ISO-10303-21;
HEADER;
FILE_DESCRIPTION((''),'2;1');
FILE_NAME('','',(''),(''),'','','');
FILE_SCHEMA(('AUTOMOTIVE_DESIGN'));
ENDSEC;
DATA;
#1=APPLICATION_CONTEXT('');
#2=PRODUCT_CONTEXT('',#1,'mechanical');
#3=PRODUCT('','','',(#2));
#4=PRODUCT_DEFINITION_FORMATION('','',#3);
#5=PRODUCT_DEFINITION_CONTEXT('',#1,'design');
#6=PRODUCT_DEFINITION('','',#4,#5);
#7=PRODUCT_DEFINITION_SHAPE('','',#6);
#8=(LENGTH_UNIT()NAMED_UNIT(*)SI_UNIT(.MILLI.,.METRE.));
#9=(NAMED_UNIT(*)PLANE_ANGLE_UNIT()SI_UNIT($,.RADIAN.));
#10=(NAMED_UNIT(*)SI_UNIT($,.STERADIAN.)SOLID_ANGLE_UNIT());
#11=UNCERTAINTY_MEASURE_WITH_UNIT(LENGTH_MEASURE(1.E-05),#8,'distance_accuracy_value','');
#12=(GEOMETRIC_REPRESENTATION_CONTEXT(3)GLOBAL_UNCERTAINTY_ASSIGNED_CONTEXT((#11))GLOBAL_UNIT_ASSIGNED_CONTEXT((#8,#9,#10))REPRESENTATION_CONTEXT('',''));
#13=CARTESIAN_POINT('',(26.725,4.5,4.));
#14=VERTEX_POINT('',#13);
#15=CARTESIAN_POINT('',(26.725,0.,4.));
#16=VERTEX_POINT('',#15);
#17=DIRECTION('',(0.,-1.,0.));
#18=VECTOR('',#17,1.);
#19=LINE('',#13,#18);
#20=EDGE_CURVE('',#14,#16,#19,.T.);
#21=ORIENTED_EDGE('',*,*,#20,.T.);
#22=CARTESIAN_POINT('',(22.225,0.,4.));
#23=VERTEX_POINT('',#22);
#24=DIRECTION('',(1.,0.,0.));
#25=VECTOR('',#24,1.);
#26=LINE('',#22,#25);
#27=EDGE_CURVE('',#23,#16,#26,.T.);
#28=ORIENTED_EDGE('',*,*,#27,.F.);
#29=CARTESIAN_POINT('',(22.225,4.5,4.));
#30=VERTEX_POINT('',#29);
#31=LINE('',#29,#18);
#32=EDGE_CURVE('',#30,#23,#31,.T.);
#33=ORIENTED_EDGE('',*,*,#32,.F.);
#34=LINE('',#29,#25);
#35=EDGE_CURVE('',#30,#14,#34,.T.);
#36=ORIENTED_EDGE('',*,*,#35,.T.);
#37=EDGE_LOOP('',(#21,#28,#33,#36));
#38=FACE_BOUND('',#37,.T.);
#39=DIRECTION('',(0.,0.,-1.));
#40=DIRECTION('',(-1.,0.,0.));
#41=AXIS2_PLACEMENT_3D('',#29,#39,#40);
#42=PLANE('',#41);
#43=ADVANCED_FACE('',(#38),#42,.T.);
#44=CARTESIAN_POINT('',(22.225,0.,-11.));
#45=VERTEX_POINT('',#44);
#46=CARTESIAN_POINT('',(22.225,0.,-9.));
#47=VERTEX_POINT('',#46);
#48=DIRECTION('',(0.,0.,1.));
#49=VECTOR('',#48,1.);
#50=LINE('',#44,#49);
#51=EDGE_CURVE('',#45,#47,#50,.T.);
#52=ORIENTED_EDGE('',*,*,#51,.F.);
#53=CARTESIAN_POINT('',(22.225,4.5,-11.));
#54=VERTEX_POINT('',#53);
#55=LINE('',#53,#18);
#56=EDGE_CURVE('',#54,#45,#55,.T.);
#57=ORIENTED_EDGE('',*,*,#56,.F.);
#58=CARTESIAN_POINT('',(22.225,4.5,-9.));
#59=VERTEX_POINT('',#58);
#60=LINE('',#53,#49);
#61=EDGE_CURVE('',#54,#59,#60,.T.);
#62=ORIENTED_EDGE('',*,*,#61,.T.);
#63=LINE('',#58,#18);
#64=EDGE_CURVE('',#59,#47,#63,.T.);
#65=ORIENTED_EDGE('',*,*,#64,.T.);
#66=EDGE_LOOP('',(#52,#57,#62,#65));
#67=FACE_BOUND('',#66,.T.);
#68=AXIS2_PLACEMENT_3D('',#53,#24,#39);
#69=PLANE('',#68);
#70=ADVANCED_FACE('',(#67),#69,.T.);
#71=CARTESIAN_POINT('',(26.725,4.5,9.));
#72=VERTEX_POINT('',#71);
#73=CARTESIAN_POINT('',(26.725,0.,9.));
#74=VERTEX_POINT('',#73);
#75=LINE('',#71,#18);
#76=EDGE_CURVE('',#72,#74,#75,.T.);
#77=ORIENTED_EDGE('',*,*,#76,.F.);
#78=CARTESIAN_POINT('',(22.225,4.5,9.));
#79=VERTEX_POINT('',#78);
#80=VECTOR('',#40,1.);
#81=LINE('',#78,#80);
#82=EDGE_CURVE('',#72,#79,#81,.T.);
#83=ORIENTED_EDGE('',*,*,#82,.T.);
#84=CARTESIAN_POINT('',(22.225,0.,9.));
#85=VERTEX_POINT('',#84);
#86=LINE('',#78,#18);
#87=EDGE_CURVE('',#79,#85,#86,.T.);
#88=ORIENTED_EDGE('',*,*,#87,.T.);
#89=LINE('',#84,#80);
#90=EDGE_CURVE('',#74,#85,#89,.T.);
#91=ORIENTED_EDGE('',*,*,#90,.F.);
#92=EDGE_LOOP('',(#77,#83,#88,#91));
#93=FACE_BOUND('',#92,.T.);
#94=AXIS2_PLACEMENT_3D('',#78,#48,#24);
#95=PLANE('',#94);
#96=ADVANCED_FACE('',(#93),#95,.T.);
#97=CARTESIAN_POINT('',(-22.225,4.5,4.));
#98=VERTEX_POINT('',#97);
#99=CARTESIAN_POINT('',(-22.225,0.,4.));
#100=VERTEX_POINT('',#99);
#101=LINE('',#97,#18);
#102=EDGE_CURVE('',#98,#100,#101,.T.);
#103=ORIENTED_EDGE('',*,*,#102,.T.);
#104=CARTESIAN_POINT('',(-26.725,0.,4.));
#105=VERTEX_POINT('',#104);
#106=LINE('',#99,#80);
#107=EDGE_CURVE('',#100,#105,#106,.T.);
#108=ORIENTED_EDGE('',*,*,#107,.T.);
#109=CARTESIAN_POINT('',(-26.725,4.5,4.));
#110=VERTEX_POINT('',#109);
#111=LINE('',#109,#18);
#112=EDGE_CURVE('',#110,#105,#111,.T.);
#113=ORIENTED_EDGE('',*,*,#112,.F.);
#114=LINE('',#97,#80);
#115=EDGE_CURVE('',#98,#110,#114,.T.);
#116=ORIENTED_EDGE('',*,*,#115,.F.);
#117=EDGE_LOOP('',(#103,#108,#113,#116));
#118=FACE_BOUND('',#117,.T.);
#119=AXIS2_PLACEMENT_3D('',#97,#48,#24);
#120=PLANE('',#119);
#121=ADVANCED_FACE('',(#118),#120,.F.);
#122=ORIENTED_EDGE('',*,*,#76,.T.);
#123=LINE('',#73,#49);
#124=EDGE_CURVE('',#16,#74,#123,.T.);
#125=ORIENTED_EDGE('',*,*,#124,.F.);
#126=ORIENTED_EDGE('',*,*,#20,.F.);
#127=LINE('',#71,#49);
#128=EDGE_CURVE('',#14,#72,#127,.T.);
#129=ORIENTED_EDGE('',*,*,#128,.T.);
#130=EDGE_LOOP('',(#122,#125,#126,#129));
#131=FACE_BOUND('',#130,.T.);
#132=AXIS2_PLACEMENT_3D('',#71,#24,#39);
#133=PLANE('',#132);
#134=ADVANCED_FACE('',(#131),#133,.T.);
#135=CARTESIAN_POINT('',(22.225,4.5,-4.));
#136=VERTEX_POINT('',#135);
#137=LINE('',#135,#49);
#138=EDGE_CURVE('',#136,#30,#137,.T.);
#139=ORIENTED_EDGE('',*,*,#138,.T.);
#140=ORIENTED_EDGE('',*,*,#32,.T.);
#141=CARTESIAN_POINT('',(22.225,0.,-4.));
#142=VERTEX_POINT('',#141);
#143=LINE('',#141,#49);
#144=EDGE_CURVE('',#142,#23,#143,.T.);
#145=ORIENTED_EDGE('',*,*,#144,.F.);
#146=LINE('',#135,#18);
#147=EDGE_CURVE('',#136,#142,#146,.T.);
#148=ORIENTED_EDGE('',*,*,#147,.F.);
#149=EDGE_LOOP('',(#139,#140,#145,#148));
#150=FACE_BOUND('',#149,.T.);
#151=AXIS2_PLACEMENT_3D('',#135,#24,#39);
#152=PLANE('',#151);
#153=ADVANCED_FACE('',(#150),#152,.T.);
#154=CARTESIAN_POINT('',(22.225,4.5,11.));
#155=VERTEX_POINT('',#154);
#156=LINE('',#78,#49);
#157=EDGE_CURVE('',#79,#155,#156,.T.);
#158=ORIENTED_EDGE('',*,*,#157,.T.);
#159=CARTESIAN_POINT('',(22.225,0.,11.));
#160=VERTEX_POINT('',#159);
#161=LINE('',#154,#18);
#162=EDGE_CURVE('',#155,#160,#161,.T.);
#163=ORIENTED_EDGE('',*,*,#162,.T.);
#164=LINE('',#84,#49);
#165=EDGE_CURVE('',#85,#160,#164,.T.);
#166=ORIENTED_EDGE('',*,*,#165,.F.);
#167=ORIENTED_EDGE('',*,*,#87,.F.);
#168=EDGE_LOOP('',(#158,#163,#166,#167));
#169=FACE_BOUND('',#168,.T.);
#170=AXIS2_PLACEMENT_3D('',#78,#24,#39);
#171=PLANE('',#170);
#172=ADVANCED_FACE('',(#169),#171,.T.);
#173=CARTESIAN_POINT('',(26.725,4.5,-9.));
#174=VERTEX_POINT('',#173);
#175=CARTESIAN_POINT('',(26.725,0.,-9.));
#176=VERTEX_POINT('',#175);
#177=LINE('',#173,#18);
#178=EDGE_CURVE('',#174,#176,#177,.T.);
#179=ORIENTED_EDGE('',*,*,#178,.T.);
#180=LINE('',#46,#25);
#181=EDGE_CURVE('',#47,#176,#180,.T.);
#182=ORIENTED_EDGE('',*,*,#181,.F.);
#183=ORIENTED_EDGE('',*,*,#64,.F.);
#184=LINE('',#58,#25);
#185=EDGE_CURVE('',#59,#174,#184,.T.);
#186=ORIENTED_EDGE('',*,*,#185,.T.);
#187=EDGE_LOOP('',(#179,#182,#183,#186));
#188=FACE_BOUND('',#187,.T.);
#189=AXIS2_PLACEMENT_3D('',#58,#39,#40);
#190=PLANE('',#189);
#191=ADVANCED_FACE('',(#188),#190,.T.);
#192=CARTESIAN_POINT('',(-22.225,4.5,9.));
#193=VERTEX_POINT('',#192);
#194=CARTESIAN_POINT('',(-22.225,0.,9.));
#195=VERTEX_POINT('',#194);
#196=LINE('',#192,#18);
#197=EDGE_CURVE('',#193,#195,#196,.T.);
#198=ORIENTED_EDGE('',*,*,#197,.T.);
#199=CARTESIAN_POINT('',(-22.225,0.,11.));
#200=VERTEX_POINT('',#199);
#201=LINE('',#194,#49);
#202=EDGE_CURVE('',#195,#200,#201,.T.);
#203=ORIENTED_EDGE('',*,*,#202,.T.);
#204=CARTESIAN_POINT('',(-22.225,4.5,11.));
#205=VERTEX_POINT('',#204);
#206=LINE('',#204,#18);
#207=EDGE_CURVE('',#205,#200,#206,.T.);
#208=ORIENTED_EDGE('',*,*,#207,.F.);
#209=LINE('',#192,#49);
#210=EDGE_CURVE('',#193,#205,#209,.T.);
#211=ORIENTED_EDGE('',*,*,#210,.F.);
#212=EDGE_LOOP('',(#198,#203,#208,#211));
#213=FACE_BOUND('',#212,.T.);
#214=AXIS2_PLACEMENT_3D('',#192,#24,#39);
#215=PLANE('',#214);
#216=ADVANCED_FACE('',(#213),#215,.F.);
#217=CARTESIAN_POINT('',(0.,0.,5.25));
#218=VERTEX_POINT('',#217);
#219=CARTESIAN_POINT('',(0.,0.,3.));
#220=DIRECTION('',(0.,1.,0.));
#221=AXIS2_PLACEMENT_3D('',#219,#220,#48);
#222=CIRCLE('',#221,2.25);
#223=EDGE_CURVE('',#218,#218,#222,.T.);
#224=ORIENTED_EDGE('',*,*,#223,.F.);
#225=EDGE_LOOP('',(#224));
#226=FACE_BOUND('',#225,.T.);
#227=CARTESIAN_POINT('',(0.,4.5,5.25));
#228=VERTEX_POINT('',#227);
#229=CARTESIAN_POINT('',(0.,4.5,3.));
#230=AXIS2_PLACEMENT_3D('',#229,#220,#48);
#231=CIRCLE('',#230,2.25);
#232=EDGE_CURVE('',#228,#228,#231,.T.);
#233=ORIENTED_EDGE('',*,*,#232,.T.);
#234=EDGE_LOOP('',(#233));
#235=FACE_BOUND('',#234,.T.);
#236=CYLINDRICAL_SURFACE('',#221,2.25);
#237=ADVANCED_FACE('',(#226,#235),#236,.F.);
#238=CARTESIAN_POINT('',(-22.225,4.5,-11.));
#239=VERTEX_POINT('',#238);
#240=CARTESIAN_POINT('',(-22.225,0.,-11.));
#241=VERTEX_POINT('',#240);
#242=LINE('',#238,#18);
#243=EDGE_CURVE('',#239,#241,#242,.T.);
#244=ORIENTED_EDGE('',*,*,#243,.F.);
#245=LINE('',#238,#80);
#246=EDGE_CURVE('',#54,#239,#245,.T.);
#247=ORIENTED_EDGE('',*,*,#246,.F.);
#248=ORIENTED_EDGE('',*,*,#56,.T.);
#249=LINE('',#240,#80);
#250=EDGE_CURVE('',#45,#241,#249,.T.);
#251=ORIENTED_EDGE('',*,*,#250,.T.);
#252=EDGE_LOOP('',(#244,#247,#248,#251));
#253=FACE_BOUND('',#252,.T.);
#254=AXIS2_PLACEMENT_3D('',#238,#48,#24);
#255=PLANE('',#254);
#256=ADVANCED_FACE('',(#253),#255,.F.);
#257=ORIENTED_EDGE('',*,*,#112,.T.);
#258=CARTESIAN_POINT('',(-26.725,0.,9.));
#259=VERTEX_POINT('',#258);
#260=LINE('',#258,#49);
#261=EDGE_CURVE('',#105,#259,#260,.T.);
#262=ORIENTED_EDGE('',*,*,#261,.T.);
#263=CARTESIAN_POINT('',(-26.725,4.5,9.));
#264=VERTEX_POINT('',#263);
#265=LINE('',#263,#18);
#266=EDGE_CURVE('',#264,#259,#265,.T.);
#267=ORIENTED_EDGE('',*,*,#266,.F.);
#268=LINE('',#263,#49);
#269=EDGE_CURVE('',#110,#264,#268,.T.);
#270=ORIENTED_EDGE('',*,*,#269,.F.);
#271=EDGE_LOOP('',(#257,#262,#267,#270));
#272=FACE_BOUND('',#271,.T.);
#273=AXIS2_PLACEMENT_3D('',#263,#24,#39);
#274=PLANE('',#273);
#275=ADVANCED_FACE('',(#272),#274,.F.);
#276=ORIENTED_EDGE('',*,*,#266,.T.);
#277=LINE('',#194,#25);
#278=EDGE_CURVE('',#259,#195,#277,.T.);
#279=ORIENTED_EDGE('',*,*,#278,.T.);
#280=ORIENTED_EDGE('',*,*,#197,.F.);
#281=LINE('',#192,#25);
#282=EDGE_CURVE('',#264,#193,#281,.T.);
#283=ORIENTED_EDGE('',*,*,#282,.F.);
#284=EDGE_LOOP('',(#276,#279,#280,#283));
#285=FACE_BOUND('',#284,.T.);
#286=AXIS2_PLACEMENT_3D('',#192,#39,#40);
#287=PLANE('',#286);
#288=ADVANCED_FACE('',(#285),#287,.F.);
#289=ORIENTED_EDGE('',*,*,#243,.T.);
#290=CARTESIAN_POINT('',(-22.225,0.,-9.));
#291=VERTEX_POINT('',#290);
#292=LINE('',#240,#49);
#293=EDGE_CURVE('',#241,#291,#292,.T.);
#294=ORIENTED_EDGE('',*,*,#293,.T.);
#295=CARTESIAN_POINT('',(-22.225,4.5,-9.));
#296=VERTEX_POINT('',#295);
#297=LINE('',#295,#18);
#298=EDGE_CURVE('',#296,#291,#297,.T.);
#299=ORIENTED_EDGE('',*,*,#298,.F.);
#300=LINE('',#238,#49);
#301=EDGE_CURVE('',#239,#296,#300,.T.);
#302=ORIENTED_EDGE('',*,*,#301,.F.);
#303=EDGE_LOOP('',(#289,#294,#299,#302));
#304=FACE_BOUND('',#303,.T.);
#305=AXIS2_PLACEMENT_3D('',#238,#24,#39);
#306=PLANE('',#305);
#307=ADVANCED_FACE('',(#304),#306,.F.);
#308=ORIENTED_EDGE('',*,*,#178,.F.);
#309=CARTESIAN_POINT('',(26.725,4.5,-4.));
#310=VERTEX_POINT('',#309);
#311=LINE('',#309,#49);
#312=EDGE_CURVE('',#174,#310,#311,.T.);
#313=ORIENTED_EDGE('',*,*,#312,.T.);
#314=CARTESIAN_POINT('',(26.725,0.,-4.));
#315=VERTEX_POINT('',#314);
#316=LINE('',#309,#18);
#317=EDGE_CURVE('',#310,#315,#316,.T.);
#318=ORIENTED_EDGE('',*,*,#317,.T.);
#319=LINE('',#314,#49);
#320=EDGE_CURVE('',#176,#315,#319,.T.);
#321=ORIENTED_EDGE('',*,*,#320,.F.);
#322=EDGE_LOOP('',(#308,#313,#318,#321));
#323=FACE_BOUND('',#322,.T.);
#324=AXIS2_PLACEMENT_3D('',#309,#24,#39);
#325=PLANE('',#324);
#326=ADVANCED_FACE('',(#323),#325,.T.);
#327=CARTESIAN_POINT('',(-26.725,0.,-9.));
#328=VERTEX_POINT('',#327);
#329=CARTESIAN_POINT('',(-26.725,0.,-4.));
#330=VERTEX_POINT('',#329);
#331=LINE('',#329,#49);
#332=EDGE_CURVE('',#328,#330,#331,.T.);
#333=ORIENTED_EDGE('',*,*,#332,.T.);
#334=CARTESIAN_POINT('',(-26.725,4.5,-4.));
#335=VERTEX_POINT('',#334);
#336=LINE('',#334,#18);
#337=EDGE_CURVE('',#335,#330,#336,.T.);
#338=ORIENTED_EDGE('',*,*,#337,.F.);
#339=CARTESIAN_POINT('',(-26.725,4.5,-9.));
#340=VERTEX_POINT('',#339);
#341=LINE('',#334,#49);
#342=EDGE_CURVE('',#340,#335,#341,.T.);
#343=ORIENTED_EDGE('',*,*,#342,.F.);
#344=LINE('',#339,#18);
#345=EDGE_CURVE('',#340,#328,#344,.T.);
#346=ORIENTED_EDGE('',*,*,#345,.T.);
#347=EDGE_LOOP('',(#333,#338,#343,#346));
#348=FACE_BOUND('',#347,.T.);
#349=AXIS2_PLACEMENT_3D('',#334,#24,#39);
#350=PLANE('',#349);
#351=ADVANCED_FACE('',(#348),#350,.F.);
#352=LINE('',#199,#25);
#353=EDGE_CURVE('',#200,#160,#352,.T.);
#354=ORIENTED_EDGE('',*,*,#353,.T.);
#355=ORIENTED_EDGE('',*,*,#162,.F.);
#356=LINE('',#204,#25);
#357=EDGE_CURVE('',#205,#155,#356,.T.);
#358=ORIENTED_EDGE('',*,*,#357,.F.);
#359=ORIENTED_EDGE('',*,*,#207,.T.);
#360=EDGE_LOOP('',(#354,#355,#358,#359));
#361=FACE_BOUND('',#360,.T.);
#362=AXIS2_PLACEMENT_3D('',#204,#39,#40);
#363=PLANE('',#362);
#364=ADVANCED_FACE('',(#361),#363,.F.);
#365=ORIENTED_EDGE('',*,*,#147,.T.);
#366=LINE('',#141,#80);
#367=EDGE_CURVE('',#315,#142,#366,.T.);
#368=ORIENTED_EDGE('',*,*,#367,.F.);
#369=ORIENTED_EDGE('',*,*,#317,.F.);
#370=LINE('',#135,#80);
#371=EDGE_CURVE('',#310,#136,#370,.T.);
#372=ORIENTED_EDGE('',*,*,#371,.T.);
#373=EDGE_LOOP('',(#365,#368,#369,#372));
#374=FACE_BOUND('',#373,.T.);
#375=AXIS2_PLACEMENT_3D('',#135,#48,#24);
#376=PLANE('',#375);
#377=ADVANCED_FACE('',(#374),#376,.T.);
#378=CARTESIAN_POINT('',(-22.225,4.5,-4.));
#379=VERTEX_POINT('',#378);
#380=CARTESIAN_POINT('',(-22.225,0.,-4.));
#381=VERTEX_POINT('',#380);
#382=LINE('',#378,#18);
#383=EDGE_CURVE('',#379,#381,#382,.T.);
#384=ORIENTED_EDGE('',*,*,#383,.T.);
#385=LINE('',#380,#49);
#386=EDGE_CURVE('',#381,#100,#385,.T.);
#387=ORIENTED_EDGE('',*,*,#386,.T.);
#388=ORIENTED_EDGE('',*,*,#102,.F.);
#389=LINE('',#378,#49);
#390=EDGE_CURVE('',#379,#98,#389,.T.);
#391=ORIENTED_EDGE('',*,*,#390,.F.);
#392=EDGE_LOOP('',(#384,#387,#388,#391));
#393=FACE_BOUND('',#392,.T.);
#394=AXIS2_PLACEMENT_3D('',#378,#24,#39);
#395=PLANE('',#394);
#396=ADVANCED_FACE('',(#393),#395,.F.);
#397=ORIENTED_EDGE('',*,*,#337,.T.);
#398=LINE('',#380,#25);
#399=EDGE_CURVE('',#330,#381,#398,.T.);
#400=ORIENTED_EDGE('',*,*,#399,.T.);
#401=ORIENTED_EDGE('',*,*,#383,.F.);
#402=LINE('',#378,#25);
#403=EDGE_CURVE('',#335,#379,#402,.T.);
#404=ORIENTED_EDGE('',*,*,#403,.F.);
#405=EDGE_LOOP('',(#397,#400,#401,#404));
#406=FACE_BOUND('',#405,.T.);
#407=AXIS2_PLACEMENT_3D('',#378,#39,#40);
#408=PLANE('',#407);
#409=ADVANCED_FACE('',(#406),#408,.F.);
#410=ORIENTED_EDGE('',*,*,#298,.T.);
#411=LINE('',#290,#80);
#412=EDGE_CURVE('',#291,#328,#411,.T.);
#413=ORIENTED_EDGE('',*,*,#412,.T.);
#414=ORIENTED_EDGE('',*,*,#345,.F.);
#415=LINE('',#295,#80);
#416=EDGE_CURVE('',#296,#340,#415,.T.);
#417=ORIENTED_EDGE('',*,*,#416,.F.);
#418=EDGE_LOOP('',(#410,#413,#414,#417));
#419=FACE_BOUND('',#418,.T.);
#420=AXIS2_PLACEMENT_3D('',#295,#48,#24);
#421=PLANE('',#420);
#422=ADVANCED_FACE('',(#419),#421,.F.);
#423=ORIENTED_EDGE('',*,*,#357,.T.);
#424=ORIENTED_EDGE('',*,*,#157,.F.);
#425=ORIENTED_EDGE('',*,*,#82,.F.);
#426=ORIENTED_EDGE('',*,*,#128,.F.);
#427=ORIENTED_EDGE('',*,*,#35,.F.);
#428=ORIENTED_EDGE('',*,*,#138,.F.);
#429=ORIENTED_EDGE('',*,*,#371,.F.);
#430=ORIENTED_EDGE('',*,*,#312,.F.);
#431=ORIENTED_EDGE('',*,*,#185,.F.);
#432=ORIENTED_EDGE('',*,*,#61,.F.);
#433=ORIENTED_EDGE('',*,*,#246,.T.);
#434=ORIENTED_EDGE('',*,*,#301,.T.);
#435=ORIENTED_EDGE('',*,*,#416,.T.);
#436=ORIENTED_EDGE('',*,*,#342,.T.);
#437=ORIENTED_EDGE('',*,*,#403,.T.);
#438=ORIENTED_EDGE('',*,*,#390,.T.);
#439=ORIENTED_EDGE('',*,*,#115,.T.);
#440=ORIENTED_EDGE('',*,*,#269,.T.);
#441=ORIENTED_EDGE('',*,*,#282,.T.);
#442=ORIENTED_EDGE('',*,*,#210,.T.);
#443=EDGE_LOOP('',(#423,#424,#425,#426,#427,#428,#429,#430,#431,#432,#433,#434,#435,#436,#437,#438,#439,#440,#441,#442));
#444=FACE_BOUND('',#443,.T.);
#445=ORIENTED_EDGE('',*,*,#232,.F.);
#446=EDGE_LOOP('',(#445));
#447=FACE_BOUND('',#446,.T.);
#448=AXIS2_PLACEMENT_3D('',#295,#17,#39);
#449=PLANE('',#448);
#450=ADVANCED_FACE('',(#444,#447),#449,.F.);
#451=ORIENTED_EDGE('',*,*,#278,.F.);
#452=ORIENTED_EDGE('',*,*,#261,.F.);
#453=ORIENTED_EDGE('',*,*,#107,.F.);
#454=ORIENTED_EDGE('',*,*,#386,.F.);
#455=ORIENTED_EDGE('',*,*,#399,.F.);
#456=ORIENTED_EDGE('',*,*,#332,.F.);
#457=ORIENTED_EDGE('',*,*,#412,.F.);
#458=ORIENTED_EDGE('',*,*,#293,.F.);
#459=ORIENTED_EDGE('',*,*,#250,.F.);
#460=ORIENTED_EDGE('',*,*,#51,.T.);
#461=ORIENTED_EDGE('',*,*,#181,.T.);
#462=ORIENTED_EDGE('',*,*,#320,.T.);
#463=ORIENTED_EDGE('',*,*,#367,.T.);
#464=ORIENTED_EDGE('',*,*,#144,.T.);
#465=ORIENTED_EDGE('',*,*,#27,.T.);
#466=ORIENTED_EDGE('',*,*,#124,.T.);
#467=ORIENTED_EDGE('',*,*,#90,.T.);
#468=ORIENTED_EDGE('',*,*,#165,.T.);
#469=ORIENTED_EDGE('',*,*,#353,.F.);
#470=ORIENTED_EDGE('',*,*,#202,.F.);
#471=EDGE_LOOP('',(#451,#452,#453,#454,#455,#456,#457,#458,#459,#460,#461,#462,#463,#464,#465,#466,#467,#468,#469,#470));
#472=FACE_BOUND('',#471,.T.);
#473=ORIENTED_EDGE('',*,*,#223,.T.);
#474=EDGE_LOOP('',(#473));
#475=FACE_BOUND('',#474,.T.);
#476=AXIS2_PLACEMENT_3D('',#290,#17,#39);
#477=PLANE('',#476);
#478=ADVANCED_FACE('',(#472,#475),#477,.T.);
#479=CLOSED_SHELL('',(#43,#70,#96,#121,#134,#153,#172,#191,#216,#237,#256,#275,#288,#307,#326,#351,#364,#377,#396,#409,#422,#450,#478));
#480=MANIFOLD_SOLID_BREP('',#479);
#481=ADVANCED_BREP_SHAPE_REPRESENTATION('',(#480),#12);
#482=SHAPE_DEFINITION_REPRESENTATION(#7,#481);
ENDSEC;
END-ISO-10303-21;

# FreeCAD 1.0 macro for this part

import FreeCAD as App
import Part
import Sketcher
from FreeCAD import Vector

doc = App.newDocument("Part")
body = doc.addObject("PartDesign::Body", "Body")

sketch1 = doc.addObject("Sketcher::SketchObject", "Sketch")
body.addObject(sketch1)
sketch1.AttachmentSupport = (doc.XZ_Plane, [""])
sketch1.MapMode = "FlatFace"
sketch1.addGeometry([
    Part.LineSegment(Vector(-22.2, 9, 0), Vector(-22.2, 11, 0)),
    Part.LineSegment(Vector(-22.2, 11, 0), Vector(0, 11, 0)),
    Part.LineSegment(Vector(0, 11, 0), Vector(0, -11, 0)),
    Part.LineSegment(Vector(0, -11, 0), Vector(-22.2, -11, 0)),
    Part.LineSegment(Vector(-22.2, -11, 0), Vector(-22.2, -9, 0)),
    Part.LineSegment(Vector(-22.2, -9, 0), Vector(-26.7, -9, 0)),
    Part.LineSegment(Vector(-26.7, -9, 0), Vector(-26.7, -4, 0)),
    Part.LineSegment(Vector(-26.7, -4, 0), Vector(-22.2, -4, 0)),
    Part.LineSegment(Vector(-22.2, -4, 0), Vector(-22.2, 4, 0)),
    Part.LineSegment(Vector(-22.2, 4, 0), Vector(-26.7, 4, 0)),
    Part.LineSegment(Vector(-26.7, 4, 0), Vector(-26.7, 9, 0)),
    Part.LineSegment(Vector(-26.7, 9, 0), Vector(-22.2, 9, 0)),
], False)
sketch1.addConstraint([
    Sketcher.Constraint("Coincident", 0, 2, 1, 1),
    Sketcher.Constraint("Coincident", 1, 2, 2, 1),
    Sketcher.Constraint("Coincident", 2, 2, 3, 1),
    Sketcher.Constraint("Coincident", 3, 2, 4, 1),
    Sketcher.Constraint("Coincident", 4, 2, 5, 1),
    Sketcher.Constraint("Coincident", 5, 2, 6, 1),
    Sketcher.Constraint("Coincident", 6, 2, 7, 1),
    Sketcher.Constraint("Coincident", 7, 2, 8, 1),
    Sketcher.Constraint("Coincident", 8, 2, 9, 1),
    Sketcher.Constraint("Coincident", 9, 2, 10, 1),
    Sketcher.Constraint("Coincident", 10, 2, 11, 1),
    Sketcher.Constraint("Coincident", 11, 2, 0, 1),
    Sketcher.Constraint("Vertical", 0),
    Sketcher.Constraint("Horizontal", 1),
    Sketcher.Constraint("Vertical", 2),
    Sketcher.Constraint("Horizontal", 3),
    Sketcher.Constraint("Vertical", 4),
    Sketcher.Constraint("Horizontal", 5),
    Sketcher.Constraint("Vertical", 6),
    Sketcher.Constraint("Horizontal", 7),
    Sketcher.Constraint("Vertical", 8),
    Sketcher.Constraint("Horizontal", 9),
    Sketcher.Constraint("Vertical", 10),
    Sketcher.Constraint("Horizontal", 11),
    Sketcher.Constraint("Symmetric", 1, 2, 2, 2, -1, 1),
    Sketcher.Constraint("Symmetric", 6, 2, 9, 2, -1),
    Sketcher.Constraint("Symmetric", 4, 2, 11, 2, -1),
    Sketcher.Constraint("Vertical", 4, 2, 7, 2),
    Sketcher.Constraint("DistanceY", 0, 1, 0, 2, 2.0),
    Sketcher.Constraint("DistanceY", 2, 2, 2, 1, 22.0),
    Sketcher.Constraint("DistanceY", 6, 1, 6, 2, 5.0),
    Sketcher.Constraint("DistanceX", 5, 2, 5, 1, 4.5),
    Sketcher.Constraint("DistanceX", 1, 1, 1, 2, 22.225),
])
pad1 = doc.addObject("PartDesign::Pad", "Pad")
body.addObject(pad1)
pad1.Profile = sketch1
pad1.Length = 4.5
pad1.Reversed = True
doc.recompute()

mirrored = doc.addObject("PartDesign::Mirrored", "Mirrored")
body.addObject(mirrored)
mirrored.Originals = [pad1]
mirrored.MirrorPlane = (doc.YZ_Plane, [""])
body.Tip = mirrored

sketch2 = doc.addObject("Sketcher::SketchObject", "Sketch001")
body.addObject(sketch2)
sketch2.AttachmentSupport = (doc.XZ_Plane, [""])
sketch2.MapMode = "FlatFace"
sketch2.AttachmentOffset = App.Placement(Vector(0, 0, -4.5), App.Rotation())
sketch2.addGeometry(Part.Circle(Vector(0, 3, 0), Vector(0, 0, 1), 2.2), False)
sketch2.addConstraint([
    Sketcher.Constraint("PointOnObject", 0, 3, -2),
    Sketcher.Constraint("Diameter", 0, 4.5),
    Sketcher.Constraint("DistanceY", -1, 1, 0, 3, 3.0),
])
pocket1 = doc.addObject("PartDesign::Pocket", "Pocket")
body.addObject(pocket1)
pocket1.Profile = sketch2
pocket1.Type = "ThroughAll"
pocket1.Reversed = True

doc.recompute()
